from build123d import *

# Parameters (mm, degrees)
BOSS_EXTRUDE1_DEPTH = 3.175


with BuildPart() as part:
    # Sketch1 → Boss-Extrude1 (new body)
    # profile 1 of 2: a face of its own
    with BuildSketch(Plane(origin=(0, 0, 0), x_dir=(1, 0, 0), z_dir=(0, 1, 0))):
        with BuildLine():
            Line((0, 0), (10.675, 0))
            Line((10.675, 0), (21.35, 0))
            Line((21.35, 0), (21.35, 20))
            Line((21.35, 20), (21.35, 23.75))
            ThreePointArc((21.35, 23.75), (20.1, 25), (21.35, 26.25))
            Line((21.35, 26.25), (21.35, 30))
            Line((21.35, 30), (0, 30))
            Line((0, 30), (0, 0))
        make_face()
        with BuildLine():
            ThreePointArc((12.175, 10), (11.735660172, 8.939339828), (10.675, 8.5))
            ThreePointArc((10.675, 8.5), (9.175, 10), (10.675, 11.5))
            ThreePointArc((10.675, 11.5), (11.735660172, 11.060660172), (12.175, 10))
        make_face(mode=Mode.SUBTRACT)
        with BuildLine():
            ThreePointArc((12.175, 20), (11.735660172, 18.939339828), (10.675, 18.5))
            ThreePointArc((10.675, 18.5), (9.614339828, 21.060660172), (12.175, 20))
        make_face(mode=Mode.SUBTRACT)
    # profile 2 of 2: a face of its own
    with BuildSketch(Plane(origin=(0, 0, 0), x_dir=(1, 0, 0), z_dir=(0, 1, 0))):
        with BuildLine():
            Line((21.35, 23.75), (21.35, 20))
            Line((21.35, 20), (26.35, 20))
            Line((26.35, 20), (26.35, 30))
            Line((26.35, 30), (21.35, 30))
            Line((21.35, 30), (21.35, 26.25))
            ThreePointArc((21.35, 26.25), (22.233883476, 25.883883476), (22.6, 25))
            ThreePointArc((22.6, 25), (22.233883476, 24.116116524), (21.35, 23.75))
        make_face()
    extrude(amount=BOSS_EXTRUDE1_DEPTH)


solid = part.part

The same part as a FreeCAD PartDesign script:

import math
import FreeCAD as App
import Part
import Sketcher
Q = App.Units.Quantity


def add_polygon(sketch, points):
    """Adds a closed chain of lines whose ends are joined by coincident constraints."""
    first, n = sketch.GeometryCount, len(points)
    for a, b in zip(points, points[1:] + points[:1]):
        sketch.addGeometry(Part.LineSegment(App.Vector(*a, 0), App.Vector(*b, 0)), False)
    for i in range(n):
        sketch.addConstraint(Sketcher.Constraint("Coincident", first + i, 2, first + (i + 1) % n, 1))

doc = App.newDocument("Part")
body = doc.addObject("PartDesign::Body", "Body")

# Sketch on XZ plane
sketch1 = body.newObject("Sketcher::SketchObject", "Sketch")
sketch1.AttachmentSupport = (doc.getObject("XZ_Plane"), [""])
sketch1.MapMode = "FlatFace"
add_polygon(sketch1, [(0, 0), (21.4, 0), (21.4, -20), (26.4, -20), (26.4, -30), (0, -30)])  # lines 0-5
sketch1.addGeometry(Part.ArcOfCircle(Part.Circle(App.Vector(21.4, -25, 0), App.Vector(0, 0, 1), 1.2), math.radians(90), math.radians(270)), False)  # 6
sketch1.addGeometry(Part.ArcOfCircle(Part.Circle(App.Vector(21.3, -25, 0), App.Vector(0, 0, 1), 1.3), math.radians(-90), math.radians(0)), False)  # 7
sketch1.addGeometry(Part.ArcOfCircle(Part.Circle(App.Vector(21.3, -25, 0), App.Vector(0, 0, 1), 1.3), math.radians(0), math.radians(90)), False)  # 8
sketch1.addGeometry(Part.ArcOfCircle(Part.Circle(App.Vector(10.7, -10, 0), App.Vector(0, 0, 1), 1.5), math.radians(-90), math.radians(0)), False)  # 9
sketch1.addGeometry(Part.ArcOfCircle(Part.Circle(App.Vector(10.7, -10, 0), App.Vector(0, 0, 1), 1.5), math.radians(0), math.radians(90)), False)  # 10
sketch1.addGeometry(Part.ArcOfCircle(Part.Circle(App.Vector(10.7, -10, 0), App.Vector(0, 0, 1), 1.5), math.radians(90), math.radians(270)), False)  # 11
sketch1.addGeometry(Part.ArcOfCircle(Part.Circle(App.Vector(10.7, -20, 0), App.Vector(0, 0, 1), 1.5), math.radians(90), math.radians(360)), False)  # 12
sketch1.addGeometry(Part.ArcOfCircle(Part.Circle(App.Vector(10.7, -20, 0), App.Vector(0, 0, 1), 1.5), math.radians(0), math.radians(90)), False)  # 13
sketch1.addConstraint(Sketcher.Constraint("Tangent", 6, 2, 7, 1))
sketch1.addConstraint(Sketcher.Constraint("Tangent", 7, 2, 8, 1))
sketch1.addConstraint(Sketcher.Constraint("Tangent", 8, 2, 6, 1))
sketch1.addConstraint(Sketcher.Constraint("Tangent", 9, 2, 10, 1))
sketch1.addConstraint(Sketcher.Constraint("Tangent", 10, 2, 11, 1))
sketch1.addConstraint(Sketcher.Constraint("Tangent", 11, 2, 9, 1))
sketch1.addConstraint(Sketcher.Constraint("Tangent", 12, 1, 13, 2))
sketch1.addConstraint(Sketcher.Constraint("Coincident", 13, 1, 12, 2))
sketch1.addConstraint(Sketcher.Constraint("Horizontal", 0))
sketch1.addConstraint(Sketcher.Constraint("Vertical", 1))
sketch1.addConstraint(Sketcher.Constraint("Horizontal", 2))
sketch1.addConstraint(Sketcher.Constraint("Vertical", 3))
sketch1.addConstraint(Sketcher.Constraint("Horizontal", 4))
sketch1.addConstraint(Sketcher.Constraint("Vertical", 5))
sketch1.addConstraint(Sketcher.Constraint("Coincident", 5, 2, -1, 1))
sketch1.addConstraint(Sketcher.Constraint("Equal", 11, 12))
sketch1.addConstraint(Sketcher.Constraint("Horizontal", 13, 3, 1, 2))
sketch1.addConstraint(Sketcher.Constraint("Horizontal", 8, 3, 7, 2))
sketch1.addConstraint(Sketcher.Constraint("Horizontal", 11, 3, 9, 2))
sketch1.addConstraint(Sketcher.Constraint("Horizontal", 2, 2, 13, 1))
sketch1.addConstraint(Sketcher.Constraint("Vertical", 11, 3, 12, 3))
sketch1.addConstraint(Sketcher.Constraint("Vertical", 8, 3, 0, 2))
sketch1.addConstraint(Sketcher.Constraint("Vertical", 1, 2, 6, 2))
sketch1.addConstraint(Sketcher.Constraint("Vertical", 6, 2, 8, 2))
sketch1.addConstraint(Sketcher.Constraint("Vertical", 13, 3, 10, 2))
sketch1.addConstraint(Sketcher.Constraint("Vertical", 10, 2, 11, 2))
sketch1.addConstraint(Sketcher.Constraint("Vertical", 11, 2, 12, 1))
sketch1.addConstraint(Sketcher.Constraint("Radius", 9, Q("1.5 mm")))
sketch1.addConstraint(Sketcher.Constraint("DistanceX", 2, 1, 2, 2, Q("5 mm")))
sketch1.addConstraint(Sketcher.Constraint("DistanceY", 1, 2, 1, 1, Q("20 mm")))
sketch1.addConstraint(Sketcher.Constraint("DistanceY", 3, 2, 3, 1, Q("10 mm")))
sketch1.addConstraint(Sketcher.Constraint("Radius", 6, Q("1.25 mm")))
sketch1.addConstraint(Sketcher.Constraint("DistanceY", 6, 3, -1, 1, Q("25 mm")))
sketch1.addConstraint(Sketcher.Constraint("DistanceY", 9, 3, -1, 1, Q("10 mm")))
sketch1.addConstraint(Sketcher.Constraint("DistanceX", 0, 1, 0, 2, Q("21.35 mm")))
sketch1.addConstraint(Sketcher.Constraint("DistanceX", -1, 1, 9, 3, Q("10.675 mm")))
pad1 = body.newObject("PartDesign::Pad", "Pad")
pad1.Profile = sketch1
pad1.Length = 3.175
pad1.Reversed = True

doc.recompute()
